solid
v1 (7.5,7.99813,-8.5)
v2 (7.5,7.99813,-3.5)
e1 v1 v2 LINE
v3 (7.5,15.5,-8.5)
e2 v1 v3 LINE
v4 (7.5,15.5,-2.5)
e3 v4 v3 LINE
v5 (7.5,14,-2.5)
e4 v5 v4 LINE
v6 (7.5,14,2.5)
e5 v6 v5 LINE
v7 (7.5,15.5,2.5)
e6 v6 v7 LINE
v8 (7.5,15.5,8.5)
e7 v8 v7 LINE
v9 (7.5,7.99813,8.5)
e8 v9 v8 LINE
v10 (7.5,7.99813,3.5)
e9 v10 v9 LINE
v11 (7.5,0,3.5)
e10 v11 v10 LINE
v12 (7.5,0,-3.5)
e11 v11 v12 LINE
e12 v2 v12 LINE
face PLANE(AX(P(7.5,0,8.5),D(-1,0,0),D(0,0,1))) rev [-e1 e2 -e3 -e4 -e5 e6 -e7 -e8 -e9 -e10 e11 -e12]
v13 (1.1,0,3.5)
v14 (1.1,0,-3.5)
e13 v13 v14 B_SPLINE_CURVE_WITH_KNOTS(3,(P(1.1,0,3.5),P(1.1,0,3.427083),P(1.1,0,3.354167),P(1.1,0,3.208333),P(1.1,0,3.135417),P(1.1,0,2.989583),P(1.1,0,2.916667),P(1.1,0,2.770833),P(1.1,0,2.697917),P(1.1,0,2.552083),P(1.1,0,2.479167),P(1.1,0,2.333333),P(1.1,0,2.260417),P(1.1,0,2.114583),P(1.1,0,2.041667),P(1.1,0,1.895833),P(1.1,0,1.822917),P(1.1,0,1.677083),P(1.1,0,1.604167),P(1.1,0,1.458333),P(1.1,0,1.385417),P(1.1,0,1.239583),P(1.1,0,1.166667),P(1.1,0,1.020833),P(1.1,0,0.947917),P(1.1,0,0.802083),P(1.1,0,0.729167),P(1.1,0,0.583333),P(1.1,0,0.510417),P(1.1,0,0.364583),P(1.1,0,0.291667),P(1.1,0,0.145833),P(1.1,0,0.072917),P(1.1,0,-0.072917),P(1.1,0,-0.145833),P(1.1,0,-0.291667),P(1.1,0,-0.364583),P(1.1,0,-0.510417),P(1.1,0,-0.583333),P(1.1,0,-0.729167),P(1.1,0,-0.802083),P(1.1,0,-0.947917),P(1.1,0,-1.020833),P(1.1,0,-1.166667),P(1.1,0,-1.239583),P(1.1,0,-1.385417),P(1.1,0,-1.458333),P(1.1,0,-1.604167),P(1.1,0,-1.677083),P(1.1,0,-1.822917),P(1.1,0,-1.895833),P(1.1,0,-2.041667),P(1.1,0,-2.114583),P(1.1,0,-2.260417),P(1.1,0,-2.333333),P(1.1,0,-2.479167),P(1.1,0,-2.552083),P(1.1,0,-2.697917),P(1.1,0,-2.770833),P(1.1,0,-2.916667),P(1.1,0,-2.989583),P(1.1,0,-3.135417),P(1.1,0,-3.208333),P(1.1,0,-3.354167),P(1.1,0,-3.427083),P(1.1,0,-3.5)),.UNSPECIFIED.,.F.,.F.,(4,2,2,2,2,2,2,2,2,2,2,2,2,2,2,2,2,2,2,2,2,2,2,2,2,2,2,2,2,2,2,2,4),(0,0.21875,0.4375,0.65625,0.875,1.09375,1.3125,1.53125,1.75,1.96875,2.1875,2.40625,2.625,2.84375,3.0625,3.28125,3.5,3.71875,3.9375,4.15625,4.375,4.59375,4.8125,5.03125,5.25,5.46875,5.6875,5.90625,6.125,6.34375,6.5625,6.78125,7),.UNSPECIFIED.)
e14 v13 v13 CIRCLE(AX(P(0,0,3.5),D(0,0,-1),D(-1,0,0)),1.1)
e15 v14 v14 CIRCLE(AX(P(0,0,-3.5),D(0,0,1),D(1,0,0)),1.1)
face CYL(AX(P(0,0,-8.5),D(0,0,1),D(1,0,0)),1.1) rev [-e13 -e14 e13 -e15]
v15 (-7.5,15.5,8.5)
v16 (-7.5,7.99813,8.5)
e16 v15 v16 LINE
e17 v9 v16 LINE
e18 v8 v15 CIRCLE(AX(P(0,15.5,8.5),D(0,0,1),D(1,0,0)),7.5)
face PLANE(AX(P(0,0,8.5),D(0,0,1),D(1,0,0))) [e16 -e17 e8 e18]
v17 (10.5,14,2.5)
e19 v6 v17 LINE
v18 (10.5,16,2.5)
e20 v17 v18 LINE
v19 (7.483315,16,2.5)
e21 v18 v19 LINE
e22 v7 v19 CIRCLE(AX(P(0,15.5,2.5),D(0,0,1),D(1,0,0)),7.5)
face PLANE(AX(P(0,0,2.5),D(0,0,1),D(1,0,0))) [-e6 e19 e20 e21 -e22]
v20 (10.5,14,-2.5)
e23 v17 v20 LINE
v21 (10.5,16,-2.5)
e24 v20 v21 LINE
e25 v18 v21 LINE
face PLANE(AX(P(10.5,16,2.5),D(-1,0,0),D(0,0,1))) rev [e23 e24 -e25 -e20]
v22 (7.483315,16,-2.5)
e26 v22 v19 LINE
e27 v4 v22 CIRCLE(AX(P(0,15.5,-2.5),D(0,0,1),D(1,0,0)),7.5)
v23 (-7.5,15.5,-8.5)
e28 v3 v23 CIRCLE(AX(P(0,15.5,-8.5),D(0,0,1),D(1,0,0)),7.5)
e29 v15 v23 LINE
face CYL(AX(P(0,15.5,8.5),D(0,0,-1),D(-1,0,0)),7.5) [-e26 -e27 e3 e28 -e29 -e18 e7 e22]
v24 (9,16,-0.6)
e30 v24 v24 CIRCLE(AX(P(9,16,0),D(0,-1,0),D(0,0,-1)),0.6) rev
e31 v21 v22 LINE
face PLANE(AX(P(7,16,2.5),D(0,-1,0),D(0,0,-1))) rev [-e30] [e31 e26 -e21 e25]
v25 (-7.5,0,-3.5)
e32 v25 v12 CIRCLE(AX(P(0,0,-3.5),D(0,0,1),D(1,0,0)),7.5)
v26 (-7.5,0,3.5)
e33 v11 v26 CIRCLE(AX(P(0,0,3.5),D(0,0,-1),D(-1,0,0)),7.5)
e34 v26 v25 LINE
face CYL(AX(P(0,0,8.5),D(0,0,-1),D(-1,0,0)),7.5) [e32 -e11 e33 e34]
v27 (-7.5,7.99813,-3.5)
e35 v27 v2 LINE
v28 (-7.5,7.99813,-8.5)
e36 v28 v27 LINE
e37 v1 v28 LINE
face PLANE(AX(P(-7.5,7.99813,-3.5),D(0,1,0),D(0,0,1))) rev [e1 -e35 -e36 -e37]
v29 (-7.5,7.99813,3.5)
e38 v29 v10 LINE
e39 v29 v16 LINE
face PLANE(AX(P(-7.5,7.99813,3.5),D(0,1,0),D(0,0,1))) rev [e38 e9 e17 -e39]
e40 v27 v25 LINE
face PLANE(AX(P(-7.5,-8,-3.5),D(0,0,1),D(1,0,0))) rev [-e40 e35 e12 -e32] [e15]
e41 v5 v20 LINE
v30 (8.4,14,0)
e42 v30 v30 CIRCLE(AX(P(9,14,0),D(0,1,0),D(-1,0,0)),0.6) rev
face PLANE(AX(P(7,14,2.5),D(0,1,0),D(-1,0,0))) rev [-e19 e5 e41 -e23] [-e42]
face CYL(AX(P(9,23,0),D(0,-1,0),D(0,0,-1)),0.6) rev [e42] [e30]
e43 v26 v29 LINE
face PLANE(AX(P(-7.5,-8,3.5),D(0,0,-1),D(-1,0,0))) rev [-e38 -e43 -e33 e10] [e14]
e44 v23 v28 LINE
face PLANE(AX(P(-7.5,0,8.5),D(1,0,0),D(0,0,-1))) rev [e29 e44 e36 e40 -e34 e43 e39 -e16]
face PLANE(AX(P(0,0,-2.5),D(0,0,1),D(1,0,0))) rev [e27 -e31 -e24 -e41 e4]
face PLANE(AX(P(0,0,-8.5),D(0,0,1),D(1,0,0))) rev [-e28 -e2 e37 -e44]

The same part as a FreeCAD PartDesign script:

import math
import FreeCAD as App
import Part
import Sketcher
Q = App.Units.Quantity


def add_polygon(sketch, points):
    """Adds a closed chain of lines whose ends are joined by coincident constraints."""
    first, n = sketch.GeometryCount, len(points)
    for a, b in zip(points, points[1:] + points[:1]):
        sketch.addGeometry(Part.LineSegment(App.Vector(*a, 0), App.Vector(*b, 0)), False)
    for i in range(n):
        sketch.addConstraint(Sketcher.Constraint("Coincident", first + i, 2, first + (i + 1) % n, 1))

doc = App.newDocument("Part")
params = doc.addObject("Spreadsheet::Sheet", "Params")
for row, (alias, value) in enumerate([
    ("sketch1_radius", "7.5 mm"),
    ("sketch1_height", "15.5 mm"),
    ("pad1_length", "17 mm"),
    ("sketch2_height", "5.5 mm"),
    ("sketch3_diameter", "2.2 mm"),
    ("sketch4_height", "2 mm"),
    ("sketch4_width", "3.5 mm"),
    ("pad2_length", "5 mm"),
    ("sketch5_diameter", "1.2 mm"),
], start=1):
    params.set(f"A{row}", alias)
    params.set(f"B{row}", "=" + value)
    params.setAlias(f"B{row}", alias)

body = doc.addObject("PartDesign::Body", "Body")

sketch1 = body.newObject("Sketcher::SketchObject", "Sketch")
sketch1.AttachmentSupport = (doc.getObject("XY_Plane"), [""])
sketch1.MapMode = "FlatFace"
sketch1.addGeometry([
    Part.LineSegment(App.Vector(-7.5, 15.5, 0), App.Vector(-7.5, 0, 0)),
    Part.ArcOfCircle(Part.Circle(App.Vector(0, 0, 0), App.Vector(0, 0, 1), 7.5), math.radians(180), math.radians(360)),
    Part.LineSegment(App.Vector(7.5, 0, 0), App.Vector(7.5, 15.5, 0)),
    Part.ArcOfCircle(Part.Circle(App.Vector(0, 15.5, 0), App.Vector(0, 0, 1), 7.5), math.radians(0), math.radians(180)),
], False)
sketch1.addConstraint([
    Sketcher.Constraint("Tangent", 0, 2, 1, 1),
    Sketcher.Constraint("Tangent", 1, 2, 2, 1),
    Sketcher.Constraint("Tangent", 2, 2, 3, 1),
    Sketcher.Constraint("Tangent", 3, 2, 0, 1),
    Sketcher.Constraint("Vertical", 0),
    Sketcher.Constraint("Vertical", 2),
    Sketcher.Constraint("Coincident", 1, 3, -1, 1),
    Sketcher.Constraint("Radius", 1, Q("7.5 mm")),
    Sketcher.Constraint("DistanceY", 0, 2, 0, 1, Q("15.5 mm")),
])
sketch1.setExpression("Constraints[7]", "Params.sketch1_radius")
sketch1.setExpression("Constraints[8]", "Params.sketch1_height")
pad1 = body.newObject("PartDesign::Pad", "Pad")
pad1.Profile = sketch1
pad1.setExpression("Length", "Params.pad1_length")
pad1.Midplane = True

sketch2 = body.newObject("Sketcher::SketchObject", "Sketch001")
sketch2.AttachmentSupport = (doc.getObject("YZ_Plane"), [""])
sketch2.MapMode = "FlatFace"
sketch2.AttachmentOffset = App.Placement(App.Vector(0, 0, 7.5), App.Rotation())
add_polygon(sketch2, [(7.99813, -3.5), (-8, -3.5), (-8, -9), (7.99813, -9)])
add_polygon(sketch2, [(7.99813, 9), (-8, 9), (-8, 3.5), (7.99813, 3.5)])
sketch2.addConstraint([
    Sketcher.Constraint("Horizontal", 0),
    Sketcher.Constraint("Vertical", 1),
    Sketcher.Constraint("Horizontal", 2),
    Sketcher.Constraint("Vertical", 3),
    Sketcher.Constraint("Horizontal", 4),
    Sketcher.Constraint("Vertical", 5),
    Sketcher.Constraint("Horizontal", 6),
    Sketcher.Constraint("Vertical", 7),
    Sketcher.Constraint("Symmetric", 1, 2, 4, 2, -1),
    Sketcher.Constraint("Symmetric", 3, 2, 6, 2, -1),
    Sketcher.Constraint("DistanceY", 1, 2, 1, 1, Q("5.5 mm")),
    Sketcher.Constraint("DistanceX", 0, 2, -1, 1, Q("8 mm")),
    Sketcher.Constraint("DistanceY", 1, 2, -1, 1, Q("9 mm")),
    Sketcher.Constraint("DistanceX", 0, 2, 0, 1, Q("15.99813 mm")),
])
sketch2.setExpression("Constraints[18]", "Params.sketch2_height")
pocket1 = body.newObject("PartDesign::Pocket", "Pocket")
pocket1.Profile = sketch2
pocket1.Type = "ThroughAll"
pocket1.Midplane = True

sketch3 = body.newObject("Sketcher::SketchObject", "Sketch002")
sketch3.AttachmentSupport = (doc.getObject("XY_Plane"), [""])
sketch3.MapMode = "FlatFace"
sketch3.addGeometry(Part.Circle(App.Vector(0, 0, 0), App.Vector(0, 0, 1), 1.1), False)
sketch3.addConstraint([
    Sketcher.Constraint("Coincident", 0, 3, -1, 1),
    Sketcher.Constraint("Diameter", 0, Q("2.2 mm")),
])
sketch3.setExpression("Constraints[1]", "Params.sketch3_diameter")
pocket2 = body.newObject("PartDesign::Pocket", "Pocket001")
pocket2.Profile = sketch3
pocket2.Type = "ThroughAll"
pocket2.Midplane = True

sketch4 = body.newObject("Sketcher::SketchObject", "Sketch003")
sketch4.AttachmentSupport = (doc.getObject("XY_Plane"), [""])
sketch4.MapMode = "FlatFace"
add_polygon(sketch4, [(7, 16), (7, 14), (10.5, 14), (10.5, 16)])
sketch4.addConstraint([
    Sketcher.Constraint("Vertical", 0),
    Sketcher.Constraint("Horizontal", 1),
    Sketcher.Constraint("Vertical", 2),
    Sketcher.Constraint("Horizontal", 3),
    Sketcher.Constraint("DistanceY", 0, 2, 0, 1, Q("2 mm")),
    Sketcher.Constraint("DistanceX", 1, 1, 1, 2, Q("3.5 mm")),
    Sketcher.Constraint("DistanceX", -1, 1, 0, 2, Q("7 mm")),
    Sketcher.Constraint("DistanceY", -1, 1, 0, 2, Q("14 mm")),
])
sketch4.setExpression("Constraints[8]", "Params.sketch4_height")
sketch4.setExpression("Constraints[9]", "Params.sketch4_width")
pad2 = body.newObject("PartDesign::Pad", "Pad001")
pad2.Profile = sketch4
pad2.setExpression("Length", "Params.pad2_length")
pad2.Midplane = True

sketch5 = body.newObject("Sketcher::SketchObject", "Sketch004")
sketch5.AttachmentSupport = (doc.getObject("XZ_Plane"), [""])
sketch5.MapMode = "FlatFace"
sketch5.addGeometry(Part.Circle(App.Vector(9, 0, 0), App.Vector(0, 0, 1), 0.6), False)
sketch5.addConstraint([
    Sketcher.Constraint("PointOnObject", 0, 3, -1),
    Sketcher.Constraint("Diameter", 0, Q("1.2 mm")),
    Sketcher.Constraint("DistanceX", -1, 1, 0, 3, Q("9 mm")),
])
sketch5.setExpression("Constraints[1]", "Params.sketch5_diameter")
pocket3 = body.newObject("PartDesign::Pocket", "Pocket002")
pocket3.Profile = sketch5
pocket3.Type = "ThroughAll"
pocket3.Midplane = True

doc.recompute()
